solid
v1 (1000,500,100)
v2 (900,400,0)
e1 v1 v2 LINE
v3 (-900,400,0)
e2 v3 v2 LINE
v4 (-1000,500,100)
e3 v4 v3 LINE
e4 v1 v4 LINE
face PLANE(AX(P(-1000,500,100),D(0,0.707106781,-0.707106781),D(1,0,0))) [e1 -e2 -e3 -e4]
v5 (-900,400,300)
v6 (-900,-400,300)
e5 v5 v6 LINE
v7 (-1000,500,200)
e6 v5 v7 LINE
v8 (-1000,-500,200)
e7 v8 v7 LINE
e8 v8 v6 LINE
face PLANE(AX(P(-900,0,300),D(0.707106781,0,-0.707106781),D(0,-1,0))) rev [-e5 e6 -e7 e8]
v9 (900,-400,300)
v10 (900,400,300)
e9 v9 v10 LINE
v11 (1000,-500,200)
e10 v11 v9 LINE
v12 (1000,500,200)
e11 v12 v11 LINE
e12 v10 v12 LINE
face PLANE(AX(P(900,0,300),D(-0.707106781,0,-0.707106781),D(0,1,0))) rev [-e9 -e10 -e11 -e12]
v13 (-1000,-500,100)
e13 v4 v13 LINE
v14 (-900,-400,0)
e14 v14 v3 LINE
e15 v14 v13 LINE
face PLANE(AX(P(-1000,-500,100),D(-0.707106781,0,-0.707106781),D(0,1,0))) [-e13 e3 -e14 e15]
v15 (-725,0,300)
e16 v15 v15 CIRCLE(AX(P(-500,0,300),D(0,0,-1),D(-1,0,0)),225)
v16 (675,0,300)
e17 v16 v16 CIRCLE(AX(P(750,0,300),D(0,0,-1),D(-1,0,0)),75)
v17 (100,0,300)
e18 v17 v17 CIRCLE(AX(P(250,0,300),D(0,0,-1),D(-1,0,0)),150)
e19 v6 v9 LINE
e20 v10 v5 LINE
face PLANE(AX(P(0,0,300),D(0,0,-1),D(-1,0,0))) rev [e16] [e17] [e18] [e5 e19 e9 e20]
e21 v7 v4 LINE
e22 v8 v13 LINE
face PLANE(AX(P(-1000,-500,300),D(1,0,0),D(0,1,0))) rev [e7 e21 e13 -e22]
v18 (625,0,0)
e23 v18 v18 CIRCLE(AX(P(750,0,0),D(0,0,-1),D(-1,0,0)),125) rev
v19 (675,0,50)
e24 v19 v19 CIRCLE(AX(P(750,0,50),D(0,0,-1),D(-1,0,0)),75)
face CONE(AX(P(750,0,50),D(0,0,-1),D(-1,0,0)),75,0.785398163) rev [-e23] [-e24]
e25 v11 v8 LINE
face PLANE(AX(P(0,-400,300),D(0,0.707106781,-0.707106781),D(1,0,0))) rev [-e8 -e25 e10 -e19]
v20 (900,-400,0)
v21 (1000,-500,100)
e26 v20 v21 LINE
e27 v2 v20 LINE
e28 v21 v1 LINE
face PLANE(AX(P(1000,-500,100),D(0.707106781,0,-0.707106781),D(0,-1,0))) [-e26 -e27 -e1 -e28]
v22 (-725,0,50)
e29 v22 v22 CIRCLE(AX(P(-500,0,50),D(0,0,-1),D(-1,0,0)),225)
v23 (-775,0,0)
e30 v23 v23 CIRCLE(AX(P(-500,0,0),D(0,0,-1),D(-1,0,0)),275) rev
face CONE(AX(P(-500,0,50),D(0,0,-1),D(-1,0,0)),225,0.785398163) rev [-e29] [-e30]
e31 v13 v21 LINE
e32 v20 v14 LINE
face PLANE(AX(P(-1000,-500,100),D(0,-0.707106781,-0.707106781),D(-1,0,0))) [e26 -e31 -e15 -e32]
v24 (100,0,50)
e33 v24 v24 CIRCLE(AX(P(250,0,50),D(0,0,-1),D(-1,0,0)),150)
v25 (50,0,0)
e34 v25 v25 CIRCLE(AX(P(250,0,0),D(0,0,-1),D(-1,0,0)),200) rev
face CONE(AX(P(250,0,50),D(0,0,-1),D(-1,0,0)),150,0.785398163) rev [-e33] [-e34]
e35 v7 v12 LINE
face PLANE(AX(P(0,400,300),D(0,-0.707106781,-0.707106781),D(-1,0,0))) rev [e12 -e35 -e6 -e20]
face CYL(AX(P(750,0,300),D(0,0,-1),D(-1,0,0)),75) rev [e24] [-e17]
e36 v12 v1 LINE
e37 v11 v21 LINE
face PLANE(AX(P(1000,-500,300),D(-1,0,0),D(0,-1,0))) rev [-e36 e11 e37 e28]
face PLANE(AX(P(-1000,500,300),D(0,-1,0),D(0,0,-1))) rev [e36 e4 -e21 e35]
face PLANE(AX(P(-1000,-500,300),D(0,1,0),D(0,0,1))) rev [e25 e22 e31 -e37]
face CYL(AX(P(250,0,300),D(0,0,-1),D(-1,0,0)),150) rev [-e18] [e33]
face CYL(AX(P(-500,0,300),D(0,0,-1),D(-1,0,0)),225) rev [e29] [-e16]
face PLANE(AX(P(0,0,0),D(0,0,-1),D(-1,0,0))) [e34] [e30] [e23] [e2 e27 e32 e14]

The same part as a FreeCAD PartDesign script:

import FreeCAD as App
import Part
import Sketcher
from FreeCAD import Vector


def edges_at(feature, points):
    """Names of the edges that pass closest to the given points."""
    edges = feature.Shape.Edges
    near = lambda p: min(range(len(edges)), key=lambda i: edges[i].distToShape(Part.Vertex(*p))[0])
    return sorted({f"Edge{near(p) + 1}" for p in points})


def add_polygon(sketch, points):
    """Adds a closed chain of lines whose ends are joined by coincident constraints."""
    first, n = sketch.GeometryCount, len(points)
    for a, b in zip(points, points[1:] + points[:1]):
        sketch.addGeometry(Part.LineSegment(App.Vector(*a, 0), App.Vector(*b, 0)), False)
    for i in range(n):
        sketch.addConstraint(Sketcher.Constraint("Coincident", first + i, 2, first + (i + 1) % n, 1))

doc = App.newDocument("Part")
params = doc.addObject("Spreadsheet::Sheet", "Params")
for row, (alias, value) in enumerate([
    ("sketch1_width", "2000 mm"),
    ("sketch1_height", "1000 mm"),
    ("pad1_length", "300 mm"),
    ("chamfer_size", "100 mm"),
    ("sketch2_diameter", "150 mm"),
    ("sketch2_diameter2", "450 mm"),
    ("sketch2_diameter3", "300 mm"),
    ("chamfer2_size", "50 mm"),
], start=1):
    params.set(f"A{row}", alias)
    params.set(f"B{row}", "=" + value)
    params.setAlias(f"B{row}", alias)

body = doc.addObject("PartDesign::Body", "Body")

# Sketch on XY plane
sketch1 = doc.addObject("Sketcher::SketchObject", "Sketch")
body.addObject(sketch1)
sketch1.AttachmentSupport = (doc.XY_Plane, [""])
sketch1.MapMode = "FlatFace"
add_polygon(sketch1, [(-1000, 500), (-1000, -500), (1000, -500), (1000, 500)])  # lines 0-3
sketch1.addConstraint([
    Sketcher.Constraint("Vertical", 0),
    Sketcher.Constraint("Horizontal", 1),
    Sketcher.Constraint("Vertical", 2),
    Sketcher.Constraint("Horizontal", 3),
    Sketcher.Constraint("Symmetric", 0, 2, 2, 2, -1, 1),
    Sketcher.Constraint("DistanceX", 1, 1, 1, 2, 2000.0),
    Sketcher.Constraint("DistanceY", 0, 2, 0, 1, 1000.0),
])
sketch1.setExpression("Constraints[9]", "Params.sketch1_width")
sketch1.setExpression("Constraints[10]", "Params.sketch1_height")
pad1 = doc.addObject("PartDesign::Pad", "Pad")
body.addObject(pad1)
pad1.Profile = sketch1
pad1.setExpression("Length", "Params.pad1_length")
doc.recompute()

chamfer = doc.addObject("PartDesign::Chamfer", "Chamfer")
body.addObject(chamfer)
chamfer.Base = (pad1, edges_at(pad1, [
    (-1000, 0, 300),
    (0, -500, 300),
    (1000, 0, 300),
    (0, -500, 0),
    (-1000, 0, 0),
    (0, 500, 0),
    (1000, 0, 0),
    (0, 500, 300),
]))
chamfer.setExpression("Size", "Params.chamfer_size")

# Sketch on XY plane
sketch2 = doc.addObject("Sketcher::SketchObject", "Sketch001")
body.addObject(sketch2)
sketch2.AttachmentSupport = (doc.XY_Plane, [""])
sketch2.MapMode = "FlatFace"
sketch2.addGeometry([
    Part.Circle(Vector(750, 0, 0), Vector(0, 0, 1), 75),
    Part.Circle(Vector(-500, 0, 0), Vector(0, 0, 1), 225),
    Part.Circle(Vector(250, 0, 0), Vector(0, 0, 1), 150),
], False)
sketch2.addConstraint([
    Sketcher.Constraint("PointOnObject", 0, 3, -1),
    Sketcher.Constraint("PointOnObject", 1, 3, -1),
    Sketcher.Constraint("PointOnObject", 2, 3, -1),
    Sketcher.Constraint("Diameter", 0, 150.0),
    Sketcher.Constraint("Diameter", 1, 450.0),
    Sketcher.Constraint("Diameter", 2, 300.0),
    Sketcher.Constraint("DistanceX", -1, 1, 0, 3, 750.0),
    Sketcher.Constraint("DistanceX", 1, 3, -1, 1, 500.0),
    Sketcher.Constraint("DistanceX", -1, 1, 2, 3, 250.0),
])
sketch2.setExpression("Constraints[3]", "Params.sketch2_diameter")
sketch2.setExpression("Constraints[4]", "Params.sketch2_diameter2")
sketch2.setExpression("Constraints[5]", "Params.sketch2_diameter3")
pocket1 = doc.addObject("PartDesign::Pocket", "Pocket")
body.addObject(pocket1)
pocket1.Profile = sketch2
pocket1.Type = "ThroughAll"
pocket1.Reversed = True
doc.recompute()

chamfer2 = doc.addObject("PartDesign::Chamfer", "Chamfer001")
body.addObject(chamfer2)
chamfer2.Base = (pocket1, edges_at(pocket1, [(825, 0, 0), (400, 0, 0), (-275, 0, 0)]))
chamfer2.setExpression("Size", "Params.chamfer2_size")

doc.recompute()
